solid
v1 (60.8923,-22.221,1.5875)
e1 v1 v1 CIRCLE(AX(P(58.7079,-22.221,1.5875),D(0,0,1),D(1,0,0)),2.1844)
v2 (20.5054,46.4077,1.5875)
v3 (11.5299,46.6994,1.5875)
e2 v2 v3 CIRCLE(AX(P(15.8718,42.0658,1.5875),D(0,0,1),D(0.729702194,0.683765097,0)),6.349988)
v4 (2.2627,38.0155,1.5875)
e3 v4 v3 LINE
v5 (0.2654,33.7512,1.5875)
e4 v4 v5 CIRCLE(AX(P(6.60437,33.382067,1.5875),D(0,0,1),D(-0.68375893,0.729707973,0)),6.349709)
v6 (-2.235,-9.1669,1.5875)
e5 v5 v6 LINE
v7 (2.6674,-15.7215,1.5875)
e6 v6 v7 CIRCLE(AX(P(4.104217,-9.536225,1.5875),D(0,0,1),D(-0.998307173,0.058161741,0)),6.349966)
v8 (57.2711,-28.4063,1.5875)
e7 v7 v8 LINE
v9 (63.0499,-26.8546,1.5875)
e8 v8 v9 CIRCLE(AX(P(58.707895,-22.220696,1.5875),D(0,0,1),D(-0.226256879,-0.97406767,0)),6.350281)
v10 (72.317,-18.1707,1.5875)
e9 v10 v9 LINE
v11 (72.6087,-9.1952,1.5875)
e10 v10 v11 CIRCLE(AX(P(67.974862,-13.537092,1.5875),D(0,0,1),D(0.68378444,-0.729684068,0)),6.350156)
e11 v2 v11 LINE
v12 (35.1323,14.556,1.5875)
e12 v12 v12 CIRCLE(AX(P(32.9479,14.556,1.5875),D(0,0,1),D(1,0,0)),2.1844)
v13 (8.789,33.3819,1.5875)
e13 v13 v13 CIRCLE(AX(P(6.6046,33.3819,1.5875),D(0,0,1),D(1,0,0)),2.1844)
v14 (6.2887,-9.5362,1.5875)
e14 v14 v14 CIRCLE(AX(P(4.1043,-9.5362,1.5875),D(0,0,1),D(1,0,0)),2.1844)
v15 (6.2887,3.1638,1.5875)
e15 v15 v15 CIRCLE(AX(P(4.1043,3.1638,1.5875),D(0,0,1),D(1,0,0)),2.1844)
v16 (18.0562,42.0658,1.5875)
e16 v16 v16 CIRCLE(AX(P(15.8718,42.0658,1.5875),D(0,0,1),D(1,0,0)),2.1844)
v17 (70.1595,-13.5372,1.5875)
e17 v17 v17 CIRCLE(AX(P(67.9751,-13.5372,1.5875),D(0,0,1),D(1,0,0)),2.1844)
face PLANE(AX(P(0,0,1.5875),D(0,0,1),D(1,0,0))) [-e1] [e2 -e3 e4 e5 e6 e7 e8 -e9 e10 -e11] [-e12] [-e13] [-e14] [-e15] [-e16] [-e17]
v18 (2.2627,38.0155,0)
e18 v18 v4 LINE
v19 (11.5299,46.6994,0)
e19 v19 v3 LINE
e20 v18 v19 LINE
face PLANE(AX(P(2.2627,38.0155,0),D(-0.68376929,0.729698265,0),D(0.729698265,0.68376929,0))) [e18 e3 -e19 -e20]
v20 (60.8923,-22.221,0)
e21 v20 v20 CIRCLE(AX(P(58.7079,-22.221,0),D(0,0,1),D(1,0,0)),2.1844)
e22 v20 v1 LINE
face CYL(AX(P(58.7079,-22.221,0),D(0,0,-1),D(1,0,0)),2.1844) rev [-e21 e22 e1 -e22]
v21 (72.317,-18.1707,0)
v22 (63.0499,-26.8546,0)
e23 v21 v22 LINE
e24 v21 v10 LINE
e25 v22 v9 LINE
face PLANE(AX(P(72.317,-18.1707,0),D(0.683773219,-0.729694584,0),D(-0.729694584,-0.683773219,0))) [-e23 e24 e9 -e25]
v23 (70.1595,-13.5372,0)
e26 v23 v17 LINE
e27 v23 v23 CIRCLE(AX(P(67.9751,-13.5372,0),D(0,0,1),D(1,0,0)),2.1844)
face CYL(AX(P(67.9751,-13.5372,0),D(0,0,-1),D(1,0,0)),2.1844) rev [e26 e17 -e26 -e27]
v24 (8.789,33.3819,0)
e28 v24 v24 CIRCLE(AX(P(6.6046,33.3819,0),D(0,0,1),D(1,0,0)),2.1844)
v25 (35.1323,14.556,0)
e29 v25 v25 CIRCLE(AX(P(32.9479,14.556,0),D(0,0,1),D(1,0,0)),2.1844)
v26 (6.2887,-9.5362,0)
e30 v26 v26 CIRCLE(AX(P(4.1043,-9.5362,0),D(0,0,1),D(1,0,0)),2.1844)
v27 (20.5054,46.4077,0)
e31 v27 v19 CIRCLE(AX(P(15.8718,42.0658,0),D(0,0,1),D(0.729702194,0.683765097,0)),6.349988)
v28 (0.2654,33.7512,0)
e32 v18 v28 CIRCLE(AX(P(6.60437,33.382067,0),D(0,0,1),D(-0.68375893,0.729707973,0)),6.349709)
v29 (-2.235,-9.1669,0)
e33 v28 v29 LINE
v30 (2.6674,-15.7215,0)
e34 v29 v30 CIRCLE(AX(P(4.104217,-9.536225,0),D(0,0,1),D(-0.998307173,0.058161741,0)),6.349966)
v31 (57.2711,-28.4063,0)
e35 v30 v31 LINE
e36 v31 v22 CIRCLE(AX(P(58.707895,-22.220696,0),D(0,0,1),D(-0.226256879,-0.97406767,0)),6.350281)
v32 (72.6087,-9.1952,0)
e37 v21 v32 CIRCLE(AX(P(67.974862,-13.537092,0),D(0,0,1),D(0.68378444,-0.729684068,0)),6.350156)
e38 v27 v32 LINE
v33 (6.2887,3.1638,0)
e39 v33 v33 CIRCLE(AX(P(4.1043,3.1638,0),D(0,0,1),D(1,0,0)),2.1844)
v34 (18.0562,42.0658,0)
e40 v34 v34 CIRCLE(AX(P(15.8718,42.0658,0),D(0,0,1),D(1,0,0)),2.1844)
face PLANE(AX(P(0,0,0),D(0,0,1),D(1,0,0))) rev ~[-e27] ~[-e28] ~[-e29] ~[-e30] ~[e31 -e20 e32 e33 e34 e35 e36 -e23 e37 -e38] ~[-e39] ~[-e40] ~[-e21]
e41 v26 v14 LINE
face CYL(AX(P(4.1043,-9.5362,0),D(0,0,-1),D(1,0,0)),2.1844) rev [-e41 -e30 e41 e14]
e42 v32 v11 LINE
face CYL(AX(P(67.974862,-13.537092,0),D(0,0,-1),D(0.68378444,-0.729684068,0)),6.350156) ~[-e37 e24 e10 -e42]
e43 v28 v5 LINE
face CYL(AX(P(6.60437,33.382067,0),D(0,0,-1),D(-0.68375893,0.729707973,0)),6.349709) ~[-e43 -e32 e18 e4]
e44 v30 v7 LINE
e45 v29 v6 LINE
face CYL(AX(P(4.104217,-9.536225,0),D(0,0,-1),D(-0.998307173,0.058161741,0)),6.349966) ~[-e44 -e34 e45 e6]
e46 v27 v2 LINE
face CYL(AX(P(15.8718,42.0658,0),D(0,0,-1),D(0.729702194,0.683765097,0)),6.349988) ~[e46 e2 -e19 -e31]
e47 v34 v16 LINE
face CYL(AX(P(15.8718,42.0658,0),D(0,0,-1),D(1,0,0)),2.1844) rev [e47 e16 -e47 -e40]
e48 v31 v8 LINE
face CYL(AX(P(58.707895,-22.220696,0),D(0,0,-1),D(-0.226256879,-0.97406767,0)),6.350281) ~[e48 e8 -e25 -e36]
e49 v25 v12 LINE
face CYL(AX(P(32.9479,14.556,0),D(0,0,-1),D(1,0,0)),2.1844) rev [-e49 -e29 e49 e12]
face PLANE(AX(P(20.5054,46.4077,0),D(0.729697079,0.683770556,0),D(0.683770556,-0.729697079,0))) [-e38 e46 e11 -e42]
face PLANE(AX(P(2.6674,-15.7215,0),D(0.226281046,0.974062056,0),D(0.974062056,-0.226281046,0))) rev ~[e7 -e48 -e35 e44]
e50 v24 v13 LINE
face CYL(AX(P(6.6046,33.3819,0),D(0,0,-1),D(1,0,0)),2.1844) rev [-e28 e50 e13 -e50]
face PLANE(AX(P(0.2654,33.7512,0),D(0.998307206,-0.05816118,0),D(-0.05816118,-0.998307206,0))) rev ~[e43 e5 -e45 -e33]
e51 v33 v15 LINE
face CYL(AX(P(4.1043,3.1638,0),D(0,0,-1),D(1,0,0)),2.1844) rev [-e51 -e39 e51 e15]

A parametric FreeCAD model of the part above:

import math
import FreeCAD as App
import Part
import Sketcher

V = App.Vector
Q = App.Units.Quantity

doc = App.newDocument("Part")
body = doc.addObject("PartDesign::Body", "Body")

# Sketch on XY plane
sketch1 = body.newObject("Sketcher::SketchObject", "Sketch")
sketch1.AttachmentSupport = (doc.getObject("XY_Plane"), [""])
sketch1.MapMode = "FlatFace"
sketch1.addGeometry([
    Part.LineSegment(V(11.5, 46.7, 0), V(2.3, 38, 0)),  # 0
    Part.ArcOfCircle(Part.Circle(V(6.6, 33.4, 0), V(0, 0, 1), 6.3), math.radians(133), math.radians(177)),  # 1
    Part.LineSegment(V(0.3, 33.8, 0), V(-2.2, -9.2, 0)),  # 2
    Part.ArcOfCircle(Part.Circle(V(4.1, -9.5, 0), V(0, 0, 1), 6.4), math.radians(177), math.radians(257)),  # 3
    Part.LineSegment(V(2.7, -15.7, 0), V(57.3, -28.4, 0)),  # 4
    Part.ArcOfCircle(Part.Circle(V(58.7, -22.2, 0), V(0, 0, 1), 6.3), math.radians(-103), math.radians(-47)),  # 5
    Part.LineSegment(V(63, -26.9, 0), V(72.3, -18.2, 0)),  # 6
    Part.ArcOfCircle(Part.Circle(V(68, -13.5, 0), V(0, 0, 1), 6.3), math.radians(-47), math.radians(43)),  # 7
    Part.LineSegment(V(72.6, -9.2, 0), V(20.5, 46.4, 0)),  # 8
    Part.ArcOfCircle(Part.Circle(V(15.9, 42.1, 0), V(0, 0, 1), 6.3), math.radians(43), math.radians(133)),  # 9
    Part.Circle(V(4.1, -9.5, 0), V(0, 0, 1), 2.2),  # 10
    Part.Circle(V(4.1, 3.2, 0), V(0, 0, 1), 2.2),  # 11
    Part.Circle(V(58.7, -22.2, 0), V(0, 0, 1), 2.2),  # 12
    Part.Circle(V(68, -13.5, 0), V(0, 0, 1), 2.2),  # 13
    Part.Circle(V(32.9, 14.6, 0), V(0, 0, 1), 2.2),  # 14
    Part.Circle(V(6.6, 33.4, 0), V(0, 0, 1), 2.2),  # 15
    Part.Circle(V(15.9, 42.1, 0), V(0, 0, 1), 2.2),  # 16
], False)
sketch1.addConstraint([
    Sketcher.Constraint("Tangent", 0, 2, 1, 1),
    Sketcher.Constraint("Tangent", 1, 2, 2, 1),
    Sketcher.Constraint("Tangent", 2, 2, 3, 1),
    Sketcher.Constraint("Tangent", 3, 2, 4, 1),
    Sketcher.Constraint("Tangent", 4, 2, 5, 1),
    Sketcher.Constraint("Tangent", 5, 2, 6, 1),
    Sketcher.Constraint("Tangent", 6, 2, 7, 1),
    Sketcher.Constraint("Tangent", 7, 2, 8, 1),
    Sketcher.Constraint("Tangent", 8, 2, 9, 1),
    Sketcher.Constraint("Tangent", 9, 2, 0, 1),
    Sketcher.Constraint("Coincident", 10, 3, 3, 3),
    Sketcher.Constraint("Coincident", 12, 3, 5, 3),
    Sketcher.Constraint("Coincident", 13, 3, 7, 3),
    Sketcher.Constraint("Coincident", 15, 3, 1, 3),
    Sketcher.Constraint("Coincident", 16, 3, 9, 3),
    Sketcher.Constraint("Equal", 1, 3),
    Sketcher.Constraint("Equal", 3, 5),
    Sketcher.Constraint("Equal", 5, 7),
    Sketcher.Constraint("Equal", 7, 9),
    Sketcher.Constraint("Equal", 10, 11),
    Sketcher.Constraint("Equal", 11, 12),
    Sketcher.Constraint("Equal", 12, 13),
    Sketcher.Constraint("Equal", 13, 14),
    Sketcher.Constraint("Equal", 14, 15),
    Sketcher.Constraint("Equal", 15, 16),
    Sketcher.Constraint("Parallel", 0, 6),
    Sketcher.Constraint("Perpendicular", 6, 8),
    Sketcher.Constraint("Vertical", 10, 3, 11, 3),
    Sketcher.Constraint("Equal", 0, 6),
    Sketcher.Constraint("Radius", 1, Q("0.25 in")),
    Sketcher.Constraint("Diameter", 10, Q("0.172 in")),
    Sketcher.Constraint("Distance", 0, Q("0.5 in")),
    Sketcher.Constraint("DistanceY", 3, 3, 11, 3, Q("0.5 in")),
    Sketcher.Constraint("Distance", 8, Q("3 in")),
    Sketcher.Constraint("Angle", 0, Q("-136.861 deg")),
    Sketcher.Constraint("Distance", 4, Q("2.207 in")),
    Sketcher.Constraint("DistanceX", 2, 2, -1, 1, Q("0.088 in")),
    Sketcher.Constraint("DistanceX", 2, 2, 3, 2, Q("0.193 in")),
    Sketcher.Constraint("DistanceY", 2, 2, -1, 1, Q("0.3609 in")),
    Sketcher.Constraint("DistanceY", 11, 3, 14, 3, Q("0.4485 in")),
    Sketcher.Constraint("DistanceX", 14, 3, 4, 2, Q("0.9576 in")),
])
pad1 = body.newObject("PartDesign::Pad", "Pad")
pad1.Profile = sketch1
pad1.Length = Q("0.0625 in")

doc.recompute()
